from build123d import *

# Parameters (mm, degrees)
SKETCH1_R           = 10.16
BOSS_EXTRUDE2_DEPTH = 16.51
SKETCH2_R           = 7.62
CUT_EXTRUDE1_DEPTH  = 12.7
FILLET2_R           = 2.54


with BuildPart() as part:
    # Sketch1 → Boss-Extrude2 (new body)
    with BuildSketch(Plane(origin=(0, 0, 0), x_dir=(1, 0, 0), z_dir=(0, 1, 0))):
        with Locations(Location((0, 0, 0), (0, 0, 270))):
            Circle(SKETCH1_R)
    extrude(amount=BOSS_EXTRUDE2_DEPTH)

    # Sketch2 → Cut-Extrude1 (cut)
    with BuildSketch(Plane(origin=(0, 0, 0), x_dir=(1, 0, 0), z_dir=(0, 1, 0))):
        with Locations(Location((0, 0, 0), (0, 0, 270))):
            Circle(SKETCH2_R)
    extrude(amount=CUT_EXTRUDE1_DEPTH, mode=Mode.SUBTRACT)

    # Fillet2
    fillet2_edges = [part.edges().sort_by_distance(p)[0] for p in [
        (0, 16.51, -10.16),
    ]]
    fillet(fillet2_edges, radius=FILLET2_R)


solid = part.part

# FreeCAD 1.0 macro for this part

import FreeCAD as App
import Part
import Sketcher
Q = App.Units.Quantity


def edges_at(feature, points):
    """Names of the edges that pass closest to the given points."""
    edges = feature.Shape.Edges
    near = lambda p: min(range(len(edges)), key=lambda i: edges[i].distToShape(Part.Vertex(*p))[0])
    return sorted({f"Edge{near(p) + 1}" for p in points})

doc = App.newDocument("Part")
body = doc.addObject("PartDesign::Body", "Body")

# Sketch on XZ plane
sketch1 = doc.addObject("Sketcher::SketchObject", "Sketch")
body.addObject(sketch1)
sketch1.AttachmentSupport = (doc.XZ_Plane, [""])
sketch1.MapMode = "FlatFace"
sketch1.addGeometry(Part.Circle(App.Vector(0, 0, 0), App.Vector(0, 0, 1), 10), False)
sketch1.addConstraint(Sketcher.Constraint("Coincident", 0, 3, -1, 1))
sketch1.addConstraint(Sketcher.Constraint("Diameter", 0, Q("0.8 in")))
pad1 = doc.addObject("PartDesign::Pad", "Pad")
body.addObject(pad1)
pad1.Profile = sketch1
pad1.Length = Q("0.65 in")
pad1.Reversed = True

# Sketch on XZ plane
sketch2 = doc.addObject("Sketcher::SketchObject", "Sketch001")
body.addObject(sketch2)
sketch2.AttachmentSupport = (doc.XZ_Plane, [""])
sketch2.MapMode = "FlatFace"
sketch2.addGeometry(Part.Circle(App.Vector(0, 0, 0), App.Vector(0, 0, 1), 8), False)
sketch2.addConstraint(Sketcher.Constraint("Coincident", 0, 3, -1, 1))
sketch2.addConstraint(Sketcher.Constraint("Diameter", 0, Q("0.6 in")))
pocket1 = doc.addObject("PartDesign::Pocket", "Pocket")
body.addObject(pocket1)
pocket1.Profile = sketch2
pocket1.Length = Q("0.5 in")
doc.recompute()

fillet = doc.addObject("PartDesign::Fillet", "Fillet")
body.addObject(fillet)
fillet.Base = (pocket1, edges_at(pocket1, [(0, 16.51, -10.16)]))
fillet.Radius = Q("0.1 in")

doc.recompute()
